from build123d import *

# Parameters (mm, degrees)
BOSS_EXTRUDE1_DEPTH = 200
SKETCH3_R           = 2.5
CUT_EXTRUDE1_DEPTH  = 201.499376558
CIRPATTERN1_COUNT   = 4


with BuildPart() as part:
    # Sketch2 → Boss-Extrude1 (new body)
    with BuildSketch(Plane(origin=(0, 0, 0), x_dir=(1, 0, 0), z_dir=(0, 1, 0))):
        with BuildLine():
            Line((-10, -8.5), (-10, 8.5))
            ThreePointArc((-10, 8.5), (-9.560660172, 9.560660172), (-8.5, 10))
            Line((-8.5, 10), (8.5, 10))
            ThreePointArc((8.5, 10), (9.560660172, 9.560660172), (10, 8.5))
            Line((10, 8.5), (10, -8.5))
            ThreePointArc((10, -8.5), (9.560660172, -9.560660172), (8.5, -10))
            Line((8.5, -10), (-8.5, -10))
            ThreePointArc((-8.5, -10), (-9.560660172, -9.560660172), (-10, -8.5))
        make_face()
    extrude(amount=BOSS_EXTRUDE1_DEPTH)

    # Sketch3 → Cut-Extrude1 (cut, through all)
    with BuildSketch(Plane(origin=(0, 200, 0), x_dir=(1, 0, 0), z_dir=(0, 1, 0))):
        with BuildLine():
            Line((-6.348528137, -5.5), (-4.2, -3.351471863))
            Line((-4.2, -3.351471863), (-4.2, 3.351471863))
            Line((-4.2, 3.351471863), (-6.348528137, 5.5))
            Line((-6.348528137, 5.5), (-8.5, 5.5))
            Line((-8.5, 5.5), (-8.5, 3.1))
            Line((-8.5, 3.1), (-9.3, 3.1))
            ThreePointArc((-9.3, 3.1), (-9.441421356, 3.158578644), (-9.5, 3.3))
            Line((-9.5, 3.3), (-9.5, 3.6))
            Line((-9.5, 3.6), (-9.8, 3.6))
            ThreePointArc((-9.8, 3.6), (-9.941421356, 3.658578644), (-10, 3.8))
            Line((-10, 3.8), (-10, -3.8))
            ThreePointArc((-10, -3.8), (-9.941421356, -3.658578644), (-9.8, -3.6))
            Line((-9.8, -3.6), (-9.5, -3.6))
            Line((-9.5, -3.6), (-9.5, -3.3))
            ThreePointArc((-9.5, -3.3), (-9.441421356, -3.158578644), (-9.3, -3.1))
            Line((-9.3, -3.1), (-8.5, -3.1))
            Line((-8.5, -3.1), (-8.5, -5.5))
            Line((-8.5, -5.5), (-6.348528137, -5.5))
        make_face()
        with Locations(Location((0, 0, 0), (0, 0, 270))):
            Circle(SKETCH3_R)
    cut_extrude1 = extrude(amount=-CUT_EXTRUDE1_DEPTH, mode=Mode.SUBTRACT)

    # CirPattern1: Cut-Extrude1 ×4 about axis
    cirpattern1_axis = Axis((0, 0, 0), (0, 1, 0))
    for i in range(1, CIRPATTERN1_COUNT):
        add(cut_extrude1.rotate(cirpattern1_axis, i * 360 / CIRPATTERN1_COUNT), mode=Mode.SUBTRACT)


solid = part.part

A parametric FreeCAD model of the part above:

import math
import FreeCAD as App
import Part
import Sketcher
from FreeCAD import Vector

doc = App.newDocument("Part")
params = doc.addObject("Spreadsheet::Sheet", "Params")
for row, (alias, value) in enumerate([
    ("sketch1_radius", "1.5 mm"),
    ("sketch1_width", "17 mm"),
    ("pad1_length", "200 mm"),
    ("sketch2_diameter", "5 mm"),
    ("sketch2_radius", "0.2 mm"),
    ("sketch2_width", "0.8 mm"),
    ("sketch2_width2", "0.3 mm"),
    ("sketch2_height", "2.4 mm"),
], start=1):
    params.set(f"A{row}", alias)
    params.set(f"B{row}", "=" + value)
    params.setAlias(f"B{row}", alias)

body = doc.addObject("PartDesign::Body", "Body")

sketch1 = body.newObject("Sketcher::SketchObject", "Sketch")
sketch1.AttachmentSupport = (doc.getObject("XZ_Plane"), [""])
sketch1.MapMode = "FlatFace"
sketch1.addGeometry([
    Part.LineSegment(Vector(-10, -8.5, 0), Vector(-10, 8.5, 0)),
    Part.ArcOfCircle(Part.Circle(Vector(-8.5, 8.5, 0), Vector(0, 0, 1), 1.5), math.radians(90), math.radians(180)),
    Part.LineSegment(Vector(-8.5, 10, 0), Vector(8.5, 10, 0)),
    Part.ArcOfCircle(Part.Circle(Vector(8.5, 8.5, 0), Vector(0, 0, 1), 1.5), math.radians(0), math.radians(90)),
    Part.LineSegment(Vector(10, 8.5, 0), Vector(10, -8.5, 0)),
    Part.ArcOfCircle(Part.Circle(Vector(8.5, -8.5, 0), Vector(0, 0, 1), 1.5), math.radians(-90), math.radians(0)),
    Part.LineSegment(Vector(8.5, -10, 0), Vector(-8.5, -10, 0)),
    Part.ArcOfCircle(Part.Circle(Vector(-8.5, -8.5, 0), Vector(0, 0, 1), 1.5), math.radians(180), math.radians(270)),
], False)
sketch1.addConstraint([
    Sketcher.Constraint("Tangent", 0, 2, 1, 2),
    Sketcher.Constraint("Tangent", 1, 1, 2, 1),
    Sketcher.Constraint("Tangent", 2, 2, 3, 2),
    Sketcher.Constraint("Tangent", 3, 1, 4, 1),
    Sketcher.Constraint("Tangent", 4, 2, 5, 2),
    Sketcher.Constraint("Tangent", 5, 1, 6, 1),
    Sketcher.Constraint("Tangent", 6, 2, 7, 2),
    Sketcher.Constraint("Tangent", 7, 1, 0, 1),
    Sketcher.Constraint("Vertical", 0),
    Sketcher.Constraint("Horizontal", 2),
    Sketcher.Constraint("Vertical", 4),
    Sketcher.Constraint("Horizontal", 6),
    Sketcher.Constraint("Equal", 1, 3),
    Sketcher.Constraint("Equal", 3, 5),
    Sketcher.Constraint("Equal", 5, 7),
    Sketcher.Constraint("Symmetric", 1, 3, 5, 3, -1, 1),
    Sketcher.Constraint("Equal", 6, 0),
    Sketcher.Constraint("Radius", 1, 1.5),
    Sketcher.Constraint("DistanceX", 2, 1, 2, 2, 17.0),
])
sketch1.setExpression("Constraints[17]", "Params.sketch1_radius")
sketch1.setExpression("Constraints[18]", "Params.sketch1_width")
pad1 = body.newObject("PartDesign::Pad", "Pad")
pad1.Profile = sketch1
pad1.setExpression("Length", "Params.pad1_length")
pad1.Reversed = True

sketch2 = body.newObject("Sketcher::SketchObject", "Sketch001")
sketch2.AttachmentSupport = (doc.getObject("XZ_Plane"), [""])
sketch2.MapMode = "FlatFace"
sketch2.AttachmentOffset = App.Placement(Vector(0, 0, -200), App.Rotation())
sketch2.addGeometry([
    Part.LineSegment(Vector(-6.348528, 5.5, 0), Vector(-4.2, 3.351472, 0)),
    Part.LineSegment(Vector(-4.2, 3.351472, 0), Vector(-4.2, -3.351472, 0)),
    Part.LineSegment(Vector(-4.2, -3.351472, 0), Vector(-6.348528, -5.5, 0)),
    Part.LineSegment(Vector(-6.348528, -5.5, 0), Vector(-8.5, -5.5, 0)),
    Part.LineSegment(Vector(-8.5, -5.5, 0), Vector(-8.5, -3.1, 0)),
    Part.LineSegment(Vector(-8.5, -3.1, 0), Vector(-9.3, -3.1, 0)),
    Part.ArcOfCircle(Part.Circle(Vector(-9.3, -3.3, 0), Vector(0, 0, 1), 0.2), math.radians(90), math.radians(180)),
    Part.LineSegment(Vector(-9.5, -3.3, 0), Vector(-9.5, -3.6, 0)),
    Part.LineSegment(Vector(-9.5, -3.6, 0), Vector(-9.8, -3.6, 0)),
    Part.ArcOfCircle(Part.Circle(Vector(-9.8, -3.8, 0), Vector(0, 0, 1), 0.2), math.radians(90), math.radians(180)),
    Part.LineSegment(Vector(-10, -3.8, 0), Vector(-10, 3.8, 0)),
    Part.ArcOfCircle(Part.Circle(Vector(-9.8, 3.8, 0), Vector(0, 0, 1), 0.2), math.radians(-180), math.radians(-90)),
    Part.LineSegment(Vector(-9.8, 3.6, 0), Vector(-9.5, 3.6, 0)),
    Part.LineSegment(Vector(-9.5, 3.6, 0), Vector(-9.5, 3.3, 0)),
    Part.ArcOfCircle(Part.Circle(Vector(-9.3, 3.3, 0), Vector(0, 0, 1), 0.2), math.radians(-180), math.radians(-90)),
    Part.LineSegment(Vector(-9.3, 3.1, 0), Vector(-8.5, 3.1, 0)),
    Part.LineSegment(Vector(-8.5, 3.1, 0), Vector(-8.5, 5.5, 0)),
    Part.LineSegment(Vector(-8.5, 5.5, 0), Vector(-6.348528, 5.5, 0)),
    Part.Circle(Vector(0, 0, 0), Vector(0, 0, 1), 2.5),
], False)
sketch2.addConstraint([
    Sketcher.Constraint("Coincident", 0, 2, 1, 1),
    Sketcher.Constraint("Coincident", 1, 2, 2, 1),
    Sketcher.Constraint("Coincident", 2, 2, 3, 1),
    Sketcher.Constraint("Coincident", 3, 2, 4, 1),
    Sketcher.Constraint("Coincident", 4, 2, 5, 1),
    Sketcher.Constraint("Tangent", 5, 2, 6, 1),
    Sketcher.Constraint("Tangent", 6, 2, 7, 1),
    Sketcher.Constraint("Coincident", 7, 2, 8, 1),
    Sketcher.Constraint("Tangent", 8, 2, 9, 1),
    Sketcher.Constraint("Tangent", 9, 2, 10, 1),
    Sketcher.Constraint("Tangent", 10, 2, 11, 1),
    Sketcher.Constraint("Tangent", 11, 2, 12, 1),
    Sketcher.Constraint("Coincident", 12, 2, 13, 1),
    Sketcher.Constraint("Tangent", 13, 2, 14, 1),
    Sketcher.Constraint("Tangent", 14, 2, 15, 1),
    Sketcher.Constraint("Coincident", 15, 2, 16, 1),
    Sketcher.Constraint("Coincident", 16, 2, 17, 1),
    Sketcher.Constraint("Coincident", 17, 2, 0, 1),
    Sketcher.Constraint("Vertical", 1),
    Sketcher.Constraint("Horizontal", 3),
    Sketcher.Constraint("Vertical", 4),
    Sketcher.Constraint("Horizontal", 5),
    Sketcher.Constraint("Vertical", 7),
    Sketcher.Constraint("Horizontal", 8),
    Sketcher.Constraint("Vertical", 10),
    Sketcher.Constraint("Horizontal", 12),
    Sketcher.Constraint("Vertical", 13),
    Sketcher.Constraint("Horizontal", 15),
    Sketcher.Constraint("Vertical", 16),
    Sketcher.Constraint("Horizontal", 17),
    Sketcher.Constraint("Coincident", 18, 3, -1, 1),
    Sketcher.Constraint("Equal", 6, 9),
    Sketcher.Constraint("Equal", 9, 11),
    Sketcher.Constraint("Equal", 11, 14),
    Sketcher.Constraint("Symmetric", 6, 3, 14, 3, -1),
    Sketcher.Constraint("Symmetric", 3, 2, 16, 2, -1),
    Sketcher.Constraint("Perpendicular", 0, 2),
    Sketcher.Constraint("Vertical", 2, 2, 17, 2),
    Sketcher.Constraint("Equal", 12, 7),
    Sketcher.Constraint("Equal", 7, 13),
    Sketcher.Constraint("Equal", 0, 2),
    Sketcher.Constraint("Diameter", 18, 5.0),
    Sketcher.Constraint("Radius", 6, 0.2),
    Sketcher.Constraint("DistanceX", 5, 2, 5, 1, 0.8),
    Sketcher.Constraint("DistanceX", 8, 2, 8, 1, 0.3),
    Sketcher.Constraint("DistanceY", 4, 1, 4, 2, 2.4),
    Sketcher.Constraint("DistanceY", 10, 1, 10, 2, 7.6),
    Sketcher.Constraint("DistanceX", 9, 2, -1, 1, 10.0),
    Sketcher.Constraint("DistanceX", 0, 2, -1, 1, 4.2),
    Sketcher.Constraint("DistanceX", 3, 2, 3, 1, 2.151472),
])
sketch2.setExpression("Constraints[41]", "Params.sketch2_diameter")
sketch2.setExpression("Constraints[42]", "Params.sketch2_radius")
sketch2.setExpression("Constraints[43]", "Params.sketch2_width")
sketch2.setExpression("Constraints[44]", "Params.sketch2_width2")
sketch2.setExpression("Constraints[45]", "Params.sketch2_height")
pocket1 = body.newObject("PartDesign::Pocket", "Pocket")
pocket1.Profile = sketch2
pocket1.Type = "ThroughAll"
pocket1.Reversed = True
doc.recompute()

polarpattern = body.newObject("PartDesign::PolarPattern", "PolarPattern")
polarpattern.Originals = [pocket1]
polarpattern.Axis = (doc.getObject("Y_Axis"), [""])
polarpattern.Angle = 360
polarpattern.Occurrences = 4
body.Tip = polarpattern

doc.recompute()
